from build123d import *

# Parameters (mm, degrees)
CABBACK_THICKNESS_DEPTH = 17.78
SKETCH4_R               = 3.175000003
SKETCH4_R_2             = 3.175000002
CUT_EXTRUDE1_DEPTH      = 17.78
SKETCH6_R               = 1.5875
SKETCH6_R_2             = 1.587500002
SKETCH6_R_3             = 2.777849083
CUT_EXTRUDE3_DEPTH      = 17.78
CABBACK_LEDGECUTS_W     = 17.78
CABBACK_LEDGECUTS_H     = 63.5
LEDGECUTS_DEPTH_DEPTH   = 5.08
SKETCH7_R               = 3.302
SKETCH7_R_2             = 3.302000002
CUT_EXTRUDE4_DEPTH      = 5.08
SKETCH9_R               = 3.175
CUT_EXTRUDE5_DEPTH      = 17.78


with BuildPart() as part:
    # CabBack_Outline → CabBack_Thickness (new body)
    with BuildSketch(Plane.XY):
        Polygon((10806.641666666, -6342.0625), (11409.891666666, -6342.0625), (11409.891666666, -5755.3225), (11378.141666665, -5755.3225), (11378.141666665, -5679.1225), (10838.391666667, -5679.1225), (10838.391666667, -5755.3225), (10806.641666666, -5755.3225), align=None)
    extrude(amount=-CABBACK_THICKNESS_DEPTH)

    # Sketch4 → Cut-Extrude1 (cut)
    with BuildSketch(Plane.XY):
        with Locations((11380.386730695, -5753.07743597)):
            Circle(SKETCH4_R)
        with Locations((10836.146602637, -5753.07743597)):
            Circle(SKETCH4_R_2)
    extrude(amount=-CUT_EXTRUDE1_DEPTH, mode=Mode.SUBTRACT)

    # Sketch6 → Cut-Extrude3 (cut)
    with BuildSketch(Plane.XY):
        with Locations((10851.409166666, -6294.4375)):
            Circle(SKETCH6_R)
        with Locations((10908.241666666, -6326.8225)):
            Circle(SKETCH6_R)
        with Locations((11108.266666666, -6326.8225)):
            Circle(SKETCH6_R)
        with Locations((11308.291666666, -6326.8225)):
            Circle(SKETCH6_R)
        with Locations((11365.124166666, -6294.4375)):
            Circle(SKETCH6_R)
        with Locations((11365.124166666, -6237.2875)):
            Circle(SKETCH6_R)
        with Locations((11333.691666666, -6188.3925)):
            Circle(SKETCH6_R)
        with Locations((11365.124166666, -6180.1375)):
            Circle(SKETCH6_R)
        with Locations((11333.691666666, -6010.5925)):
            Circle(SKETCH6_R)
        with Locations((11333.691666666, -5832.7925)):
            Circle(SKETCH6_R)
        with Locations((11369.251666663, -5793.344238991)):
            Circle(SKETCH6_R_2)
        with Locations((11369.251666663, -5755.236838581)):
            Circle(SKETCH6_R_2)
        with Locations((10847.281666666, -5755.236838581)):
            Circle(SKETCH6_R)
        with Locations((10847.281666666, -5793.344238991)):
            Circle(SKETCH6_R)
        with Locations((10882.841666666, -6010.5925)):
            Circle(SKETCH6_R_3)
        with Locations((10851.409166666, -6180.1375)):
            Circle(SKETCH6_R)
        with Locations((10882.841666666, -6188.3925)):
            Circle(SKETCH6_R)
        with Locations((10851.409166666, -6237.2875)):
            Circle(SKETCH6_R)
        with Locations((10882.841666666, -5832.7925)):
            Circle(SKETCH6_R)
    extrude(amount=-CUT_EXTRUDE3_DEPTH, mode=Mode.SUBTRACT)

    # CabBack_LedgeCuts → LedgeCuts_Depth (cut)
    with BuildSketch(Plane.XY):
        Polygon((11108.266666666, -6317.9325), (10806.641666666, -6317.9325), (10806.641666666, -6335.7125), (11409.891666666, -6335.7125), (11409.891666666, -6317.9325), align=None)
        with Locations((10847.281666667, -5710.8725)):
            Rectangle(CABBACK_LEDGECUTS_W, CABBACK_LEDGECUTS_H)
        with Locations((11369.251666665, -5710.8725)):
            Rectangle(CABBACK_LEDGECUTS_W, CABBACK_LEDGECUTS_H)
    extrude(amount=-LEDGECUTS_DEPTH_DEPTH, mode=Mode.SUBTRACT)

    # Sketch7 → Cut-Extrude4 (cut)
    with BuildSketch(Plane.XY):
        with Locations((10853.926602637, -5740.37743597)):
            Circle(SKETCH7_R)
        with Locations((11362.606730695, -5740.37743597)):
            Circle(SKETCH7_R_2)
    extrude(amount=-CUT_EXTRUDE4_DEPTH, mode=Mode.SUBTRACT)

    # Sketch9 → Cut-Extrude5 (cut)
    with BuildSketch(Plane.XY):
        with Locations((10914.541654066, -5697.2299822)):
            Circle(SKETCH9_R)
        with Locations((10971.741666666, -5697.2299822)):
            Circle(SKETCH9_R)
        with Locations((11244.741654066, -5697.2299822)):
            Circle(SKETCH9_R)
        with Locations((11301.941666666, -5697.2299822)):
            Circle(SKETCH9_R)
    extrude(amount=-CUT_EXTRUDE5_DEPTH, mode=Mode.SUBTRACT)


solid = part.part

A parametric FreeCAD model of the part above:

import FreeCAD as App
import Part
import Sketcher

V = App.Vector
Q = App.Units.Quantity


def add_polygon(sketch, points):
    """Adds a closed chain of lines whose ends are joined by coincident constraints."""
    first, n = sketch.GeometryCount, len(points)
    for a, b in zip(points, points[1:] + points[:1]):
        sketch.addGeometry(Part.LineSegment(App.Vector(*a, 0), App.Vector(*b, 0)), False)
    for i in range(n):
        sketch.addConstraint(Sketcher.Constraint("Coincident", first + i, 2, first + (i + 1) % n, 1))

doc = App.newDocument("Part")
params = doc.addObject("Spreadsheet::Sheet", "Params")
for row, (alias, value) in enumerate([
    ("sketch1_height", "3 in"),
    ("sketch1_height2", "23.1 in"),
    ("sketch1_width", "23.75 in"),
    ("sketch1_width2", "1.25 in"),
    ("pad1_length", "0.7 in"),
    ("sketch2_diameter", "0.25 in"),
    ("pocket1_length", "0.7 in"),
    ("sketch3_diameter", "0.125 in"),
    ("pocket2_length", "0.7 in"),
    ("sketch4_width", "0.7 in"),
    ("sketch4_height", "2.5 in"),
    ("sketch4_width2", "23.75 in"),
    ("pocket3_length", "0.2 in"),
    ("sketch5_diameter", "0.26 in"),
    ("pocket4_length", "0.2 in"),
    ("sketch6_diameter", "0.25 in"),
    ("pocket5_length", "0.7 in"),
], start=1):
    params.set(f"A{row}", alias)
    params.set(f"B{row}", "=" + value)
    params.setAlias(f"B{row}", alias)

body = doc.addObject("PartDesign::Body", "Body")

sketch1 = body.newObject("Sketcher::SketchObject", "Sketch")
sketch1.AttachmentSupport = (doc.getObject("XY_Plane"), [""])
sketch1.MapMode = "FlatFace"
add_polygon(sketch1, [(10806.641667, -6342.0625), (11409.891667, -6342.0625), (11409.891667, -5755.3225), (11378.141667, -5755.3225), (11378.141667, -5679.1225), (10838.391667, -5679.1225), (10838.391667, -5755.3225), (10806.641667, -5755.3225)])
sketch1.addConstraint(Sketcher.Constraint("Horizontal", 0))
sketch1.addConstraint(Sketcher.Constraint("Vertical", 1))
sketch1.addConstraint(Sketcher.Constraint("Horizontal", 2))
sketch1.addConstraint(Sketcher.Constraint("Vertical", 3))
sketch1.addConstraint(Sketcher.Constraint("Horizontal", 4))
sketch1.addConstraint(Sketcher.Constraint("Vertical", 5))
sketch1.addConstraint(Sketcher.Constraint("Horizontal", 6))
sketch1.addConstraint(Sketcher.Constraint("Vertical", 7))
sketch1.addConstraint(Sketcher.Constraint("Horizontal", 2, 2, 5, 2))
sketch1.addConstraint(Sketcher.Constraint("Equal", 2, 6))
sketch1.addConstraint(Sketcher.Constraint("DistanceY", 3, 1, 3, 2, Q("3 in")))
sketch1.addConstraint(Sketcher.Constraint("DistanceY", 1, 1, 1, 2, Q("23.1 in")))
sketch1.addConstraint(Sketcher.Constraint("DistanceX", 0, 1, 0, 2, Q("23.75 in")))
sketch1.addConstraint(Sketcher.Constraint("DistanceX", 2, 2, 2, 1, Q("1.25 in")))
sketch1.addConstraint(Sketcher.Constraint("DistanceY", 0, 2, -1, 1, Q("249.6875 in")))
sketch1.addConstraint(Sketcher.Constraint("DistanceX", -1, 1, 0, 2, Q("11409.891667 mm")))
sketch1.setExpression("Constraints[18]", "Params.sketch1_height")
sketch1.setExpression("Constraints[19]", "Params.sketch1_height2")
sketch1.setExpression("Constraints[20]", "Params.sketch1_width")
sketch1.setExpression("Constraints[21]", "Params.sketch1_width2")
pad1 = body.newObject("PartDesign::Pad", "Pad")
pad1.Profile = sketch1
pad1.setExpression("Length", "Params.pad1_length")
pad1.Reversed = True

sketch2 = body.newObject("Sketcher::SketchObject", "Sketch001")
sketch2.AttachmentSupport = (doc.getObject("XY_Plane"), [""])
sketch2.MapMode = "FlatFace"
sketch2.addGeometry(Part.Circle(V(11380.386731, -5753.077436, 0), V(0, 0, 1), 3.175), False)
sketch2.addGeometry(Part.Circle(V(10836.146603, -5753.077436, 0), V(0, 0, 1), 3.175), False)
sketch2.addConstraint(Sketcher.Constraint("Equal", 0, 1))
sketch2.addConstraint(Sketcher.Constraint("Horizontal", 0, 3, 1, 3))
sketch2.addConstraint(Sketcher.Constraint("Diameter", 0, Q("0.25 in")))
sketch2.addConstraint(Sketcher.Constraint("DistanceX", -1, 1, 0, 3, Q("11380.386731 mm")))
sketch2.addConstraint(Sketcher.Constraint("DistanceX", 1, 3, 0, 3, Q("544.240128 mm")))
sketch2.addConstraint(Sketcher.Constraint("DistanceY", 0, 3, -1, 1, Q("5753.077436 mm")))
sketch2.setExpression("Constraints[2]", "Params.sketch2_diameter")
pocket1 = body.newObject("PartDesign::Pocket", "Pocket")
pocket1.Profile = sketch2
pocket1.setExpression("Length", "Params.pocket1_length")

sketch3 = body.newObject("Sketcher::SketchObject", "Sketch002")
sketch3.AttachmentSupport = (doc.getObject("XY_Plane"), [""])
sketch3.MapMode = "FlatFace"
sketch3.addGeometry(Part.Circle(V(10851.409167, -6294.4375, 0), V(0, 0, 1), 1.5875), False)
sketch3.addGeometry(Part.Circle(V(10908.241667, -6326.8225, 0), V(0, 0, 1), 1.5875), False)
sketch3.addGeometry(Part.Circle(V(11108.266667, -6326.8225, 0), V(0, 0, 1), 1.5875), False)
sketch3.addGeometry(Part.Circle(V(11308.291667, -6326.8225, 0), V(0, 0, 1), 1.5875), False)
sketch3.addGeometry(Part.Circle(V(11365.124167, -6294.4375, 0), V(0, 0, 1), 1.5875), False)
sketch3.addGeometry(Part.Circle(V(11365.124167, -6237.2875, 0), V(0, 0, 1), 1.5875), False)
sketch3.addGeometry(Part.Circle(V(11333.691667, -6188.3925, 0), V(0, 0, 1), 1.5875), False)
sketch3.addGeometry(Part.Circle(V(11365.124167, -6180.1375, 0), V(0, 0, 1), 1.5875), False)
sketch3.addGeometry(Part.Circle(V(11333.691667, -6010.5925, 0), V(0, 0, 1), 1.5875), False)
sketch3.addGeometry(Part.Circle(V(11333.691667, -5832.7925, 0), V(0, 0, 1), 1.5875), False)
sketch3.addGeometry(Part.Circle(V(11369.251667, -5793.344239, 0), V(0, 0, 1), 1.5875), False)
sketch3.addGeometry(Part.Circle(V(11369.251667, -5755.236839, 0), V(0, 0, 1), 1.5875), False)
sketch3.addGeometry(Part.Circle(V(10847.281667, -5755.236839, 0), V(0, 0, 1), 1.5875), False)
sketch3.addGeometry(Part.Circle(V(10847.281667, -5793.344239, 0), V(0, 0, 1), 1.5875), False)
sketch3.addGeometry(Part.Circle(V(10882.841667, -6010.5925, 0), V(0, 0, 1), 2.777849), False)
sketch3.addGeometry(Part.Circle(V(10851.409167, -6180.1375, 0), V(0, 0, 1), 1.5875), False)
sketch3.addGeometry(Part.Circle(V(10882.841667, -6188.3925, 0), V(0, 0, 1), 1.5875), False)
sketch3.addGeometry(Part.Circle(V(10851.409167, -6237.2875, 0), V(0, 0, 1), 1.5875), False)
sketch3.addGeometry(Part.Circle(V(10882.841667, -5832.7925, 0), V(0, 0, 1), 1.5875), False)
sketch3.addConstraint(Sketcher.Constraint("Equal", 0, 1))
sketch3.addConstraint(Sketcher.Constraint("Equal", 1, 2))
sketch3.addConstraint(Sketcher.Constraint("Equal", 2, 3))
sketch3.addConstraint(Sketcher.Constraint("Equal", 3, 4))
sketch3.addConstraint(Sketcher.Constraint("Equal", 4, 5))
sketch3.addConstraint(Sketcher.Constraint("Equal", 5, 6))
sketch3.addConstraint(Sketcher.Constraint("Equal", 6, 7))
sketch3.addConstraint(Sketcher.Constraint("Equal", 7, 8))
sketch3.addConstraint(Sketcher.Constraint("Equal", 8, 9))
sketch3.addConstraint(Sketcher.Constraint("Equal", 9, 10))
sketch3.addConstraint(Sketcher.Constraint("Equal", 10, 11))
sketch3.addConstraint(Sketcher.Constraint("Equal", 11, 12))
sketch3.addConstraint(Sketcher.Constraint("Equal", 12, 13))
sketch3.addConstraint(Sketcher.Constraint("Equal", 13, 15))
sketch3.addConstraint(Sketcher.Constraint("Equal", 15, 16))
sketch3.addConstraint(Sketcher.Constraint("Equal", 16, 17))
sketch3.addConstraint(Sketcher.Constraint("Equal", 17, 18))
sketch3.addConstraint(Sketcher.Constraint("Horizontal", 1, 3, 2, 3))
sketch3.addConstraint(Sketcher.Constraint("Horizontal", 2, 3, 3, 3))
sketch3.addConstraint(Sketcher.Constraint("Horizontal", 0, 3, 4, 3))
sketch3.addConstraint(Sketcher.Constraint("Horizontal", 11, 3, 12, 3))
sketch3.addConstraint(Sketcher.Constraint("Horizontal", 10, 3, 13, 3))
sketch3.addConstraint(Sketcher.Constraint("Horizontal", 8, 3, 14, 3))
sketch3.addConstraint(Sketcher.Constraint("Horizontal", 7, 3, 15, 3))
sketch3.addConstraint(Sketcher.Constraint("Horizontal", 6, 3, 16, 3))
sketch3.addConstraint(Sketcher.Constraint("Horizontal", 5, 3, 17, 3))
sketch3.addConstraint(Sketcher.Constraint("Horizontal", 9, 3, 18, 3))
sketch3.addConstraint(Sketcher.Constraint("Vertical", 4, 3, 5, 3))
sketch3.addConstraint(Sketcher.Constraint("Vertical", 5, 3, 7, 3))
sketch3.addConstraint(Sketcher.Constraint("Vertical", 6, 3, 8, 3))
sketch3.addConstraint(Sketcher.Constraint("Vertical", 8, 3, 9, 3))
sketch3.addConstraint(Sketcher.Constraint("Vertical", 10, 3, 11, 3))
sketch3.addConstraint(Sketcher.Constraint("Vertical", 12, 3, 13, 3))
sketch3.addConstraint(Sketcher.Constraint("Vertical", 0, 3, 15, 3))
sketch3.addConstraint(Sketcher.Constraint("Vertical", 14, 3, 16, 3))
sketch3.addConstraint(Sketcher.Constraint("Vertical", 15, 3, 17, 3))
sketch3.addConstraint(Sketcher.Constraint("Vertical", 16, 3, 18, 3))
sketch3.addConstraint(Sketcher.Constraint("Diameter", 0, Q("0.125 in")))
sketch3.addConstraint(Sketcher.Constraint("DistanceX", 3, 3, 6, 3, Q("1 in")))
sketch3.addConstraint(Sketcher.Constraint("DistanceY", 6, 3, 8, 3, Q("7 in")))
sketch3.addConstraint(Sketcher.Constraint("DistanceY", 8, 3, 9, 3, Q("7 in")))
sketch3.addConstraint(Sketcher.Constraint("DistanceX", 14, 3, 1, 3, Q("1 in")))
sketch3.addConstraint(Sketcher.Constraint("DistanceY", 4, 3, 7, 3, Q("4.5 in")))
sketch3.addConstraint(Sketcher.Constraint("DistanceX", 9, 3, 10, 3, Q("1.4 in")))
sketch3.addConstraint(Sketcher.Constraint("DistanceX", 13, 3, 14, 3, Q("1.4 in")))
sketch3.addConstraint(Sketcher.Constraint("Diameter", 14, Q("5.555698 mm")))
sketch3.addConstraint(Sketcher.Constraint("DistanceX", 1, 3, 3, 3, Q("15.75 in")))
sketch3.addConstraint(Sketcher.Constraint("DistanceY", 4, 3, 5, 3, Q("2.25 in")))
sketch3.addConstraint(Sketcher.Constraint("DistanceY", 3, 3, 6, 3, Q("5.45 in")))
sketch3.addConstraint(Sketcher.Constraint("DistanceY", 0, 3, -1, 1, Q("247.8125 in")))
sketch3.addConstraint(Sketcher.Constraint("DistanceY", 1, 3, 0, 3, Q("1.275 in")))
sketch3.addConstraint(Sketcher.Constraint("DistanceX", 1, 3, 2, 3, Q("7.875 in")))
sketch3.addConstraint(Sketcher.Constraint("DistanceX", 0, 3, 4, 3, Q("20.225 in")))
sketch3.addConstraint(Sketcher.Constraint("DistanceX", 0, 3, 1, 3, Q("2.2375 in")))
sketch3.addConstraint(Sketcher.Constraint("DistanceY", 10, 3, 11, 3, Q("38.1074 mm")))
sketch3.addConstraint(Sketcher.Constraint("DistanceY", 10, 3, -1, 1, Q("5793.344239 mm")))
sketch3.addConstraint(Sketcher.Constraint("DistanceX", -1, 1, 0, 3, Q("10851.409167 mm")))
sketch3.setExpression("Constraints[37]", "Params.sketch3_diameter")
pocket2 = body.newObject("PartDesign::Pocket", "Pocket001")
pocket2.Profile = sketch3
pocket2.setExpression("Length", "Params.pocket2_length")

sketch4 = body.newObject("Sketcher::SketchObject", "Sketch003")
sketch4.AttachmentSupport = (doc.getObject("XY_Plane"), [""])
sketch4.MapMode = "FlatFace"
add_polygon(sketch4, [(10806.641667, -6317.9325), (10806.641667, -6335.7125), (11409.891667, -6335.7125), (11409.891667, -6317.9325)])
add_polygon(sketch4, [(10838.391667, -5679.1225), (10838.391667, -5742.6225), (10856.171667, -5742.6225), (10856.171667, -5679.1225)])
add_polygon(sketch4, [(11360.361667, -5679.1225), (11360.361667, -5742.6225), (11378.141667, -5742.6225), (11378.141667, -5679.1225)])
sketch4.addConstraint(Sketcher.Constraint("Vertical", 0))
sketch4.addConstraint(Sketcher.Constraint("Horizontal", 1))
sketch4.addConstraint(Sketcher.Constraint("Vertical", 2))
sketch4.addConstraint(Sketcher.Constraint("Horizontal", 3))
sketch4.addConstraint(Sketcher.Constraint("Vertical", 4))
sketch4.addConstraint(Sketcher.Constraint("Horizontal", 5))
sketch4.addConstraint(Sketcher.Constraint("Vertical", 6))
sketch4.addConstraint(Sketcher.Constraint("Horizontal", 7))
sketch4.addConstraint(Sketcher.Constraint("Vertical", 8))
sketch4.addConstraint(Sketcher.Constraint("Horizontal", 9))
sketch4.addConstraint(Sketcher.Constraint("Vertical", 10))
sketch4.addConstraint(Sketcher.Constraint("Horizontal", 11))
sketch4.addConstraint(Sketcher.Constraint("Horizontal", 5, 2, 8, 2))
sketch4.addConstraint(Sketcher.Constraint("Horizontal", 7, 2, 10, 2))
sketch4.addConstraint(Sketcher.Constraint("Equal", 7, 9))
sketch4.addConstraint(Sketcher.Constraint("Equal", 11, 0))
sketch4.addConstraint(Sketcher.Constraint("DistanceX", 5, 1, 5, 2, Q("0.7 in")))
sketch4.addConstraint(Sketcher.Constraint("DistanceY", 4, 2, 4, 1, Q("2.5 in")))
sketch4.addConstraint(Sketcher.Constraint("DistanceX", 1, 1, 1, 2, Q("23.75 in")))
sketch4.addConstraint(Sketcher.Constraint("DistanceX", 4, 2, 2, 2, Q("22.5 in")))
sketch4.addConstraint(Sketcher.Constraint("DistanceY", 3, 2, 4, 2, Q("22.65 in")))
sketch4.addConstraint(Sketcher.Constraint("DistanceX", 5, 2, 8, 2, Q("19.85 in")))
sketch4.addConstraint(Sketcher.Constraint("DistanceY", 0, 2, -1, 1, Q("249.4375 in")))
sketch4.addConstraint(Sketcher.Constraint("DistanceX", -1, 1, 0, 2, Q("10806.641667 mm")))
sketch4.setExpression("Constraints[28]", "Params.sketch4_width")
sketch4.setExpression("Constraints[29]", "Params.sketch4_height")
sketch4.setExpression("Constraints[30]", "Params.sketch4_width2")
pocket3 = body.newObject("PartDesign::Pocket", "Pocket002")
pocket3.Profile = sketch4
pocket3.setExpression("Length", "Params.pocket3_length")

sketch5 = body.newObject("Sketcher::SketchObject", "Sketch004")
sketch5.AttachmentSupport = (doc.getObject("XY_Plane"), [""])
sketch5.MapMode = "FlatFace"
sketch5.addGeometry(Part.Circle(V(10853.926603, -5740.377436, 0), V(0, 0, 1), 3.302), False)
sketch5.addGeometry(Part.Circle(V(11362.606731, -5740.377436, 0), V(0, 0, 1), 3.302), False)
sketch5.addConstraint(Sketcher.Constraint("Equal", 0, 1))
sketch5.addConstraint(Sketcher.Constraint("Horizontal", 0, 3, 1, 3))
sketch5.addConstraint(Sketcher.Constraint("Diameter", 0, Q("0.26 in")))
sketch5.addConstraint(Sketcher.Constraint("DistanceX", -1, 1, 1, 3, Q("11362.606731 mm")))
sketch5.addConstraint(Sketcher.Constraint("DistanceX", 0, 3, 1, 3, Q("508.680128 mm")))
sketch5.addConstraint(Sketcher.Constraint("DistanceY", 0, 3, -1, 1, Q("5740.377436 mm")))
sketch5.setExpression("Constraints[2]", "Params.sketch5_diameter")
pocket4 = body.newObject("PartDesign::Pocket", "Pocket003")
pocket4.Profile = sketch5
pocket4.setExpression("Length", "Params.pocket4_length")

sketch6 = body.newObject("Sketcher::SketchObject", "Sketch005")
sketch6.AttachmentSupport = (doc.getObject("XY_Plane"), [""])
sketch6.MapMode = "FlatFace"
sketch6.addGeometry(Part.Circle(V(10914.541654, -5697.229982, 0), V(0, 0, 1), 3.175), False)
sketch6.addGeometry(Part.Circle(V(10971.741667, -5697.229982, 0), V(0, 0, 1), 3.175), False)
sketch6.addGeometry(Part.Circle(V(11244.741654, -5697.229982, 0), V(0, 0, 1), 3.175), False)
sketch6.addGeometry(Part.Circle(V(11301.941667, -5697.229982, 0), V(0, 0, 1), 3.175), False)
sketch6.addConstraint(Sketcher.Constraint("Equal", 0, 1))
sketch6.addConstraint(Sketcher.Constraint("Equal", 1, 2))
sketch6.addConstraint(Sketcher.Constraint("Equal", 2, 3))
sketch6.addConstraint(Sketcher.Constraint("Horizontal", 0, 3, 1, 3))
sketch6.addConstraint(Sketcher.Constraint("Horizontal", 1, 3, 2, 3))
sketch6.addConstraint(Sketcher.Constraint("Horizontal", 2, 3, 3, 3))
sketch6.addConstraint(Sketcher.Constraint("Diameter", 0, Q("0.25 in")))
sketch6.addConstraint(Sketcher.Constraint("DistanceX", 0, 3, 2, 3, Q("13 in")))
sketch6.addConstraint(Sketcher.Constraint("DistanceX", 1, 3, 3, 3, Q("13 in")))
sketch6.addConstraint(Sketcher.Constraint("DistanceX", -1, 1, 0, 3, Q("10914.541654 mm")))
sketch6.addConstraint(Sketcher.Constraint("DistanceY", 0, 3, -1, 1, Q("5697.229982 mm")))
sketch6.addConstraint(Sketcher.Constraint("DistanceX", -1, 1, 1, 3, Q("10971.741667 mm")))
sketch6.setExpression("Constraints[6]", "Params.sketch6_diameter")
pocket5 = body.newObject("PartDesign::Pocket", "Pocket004")
pocket5.Profile = sketch6
pocket5.setExpression("Length", "Params.pocket5_length")

doc.recompute()
